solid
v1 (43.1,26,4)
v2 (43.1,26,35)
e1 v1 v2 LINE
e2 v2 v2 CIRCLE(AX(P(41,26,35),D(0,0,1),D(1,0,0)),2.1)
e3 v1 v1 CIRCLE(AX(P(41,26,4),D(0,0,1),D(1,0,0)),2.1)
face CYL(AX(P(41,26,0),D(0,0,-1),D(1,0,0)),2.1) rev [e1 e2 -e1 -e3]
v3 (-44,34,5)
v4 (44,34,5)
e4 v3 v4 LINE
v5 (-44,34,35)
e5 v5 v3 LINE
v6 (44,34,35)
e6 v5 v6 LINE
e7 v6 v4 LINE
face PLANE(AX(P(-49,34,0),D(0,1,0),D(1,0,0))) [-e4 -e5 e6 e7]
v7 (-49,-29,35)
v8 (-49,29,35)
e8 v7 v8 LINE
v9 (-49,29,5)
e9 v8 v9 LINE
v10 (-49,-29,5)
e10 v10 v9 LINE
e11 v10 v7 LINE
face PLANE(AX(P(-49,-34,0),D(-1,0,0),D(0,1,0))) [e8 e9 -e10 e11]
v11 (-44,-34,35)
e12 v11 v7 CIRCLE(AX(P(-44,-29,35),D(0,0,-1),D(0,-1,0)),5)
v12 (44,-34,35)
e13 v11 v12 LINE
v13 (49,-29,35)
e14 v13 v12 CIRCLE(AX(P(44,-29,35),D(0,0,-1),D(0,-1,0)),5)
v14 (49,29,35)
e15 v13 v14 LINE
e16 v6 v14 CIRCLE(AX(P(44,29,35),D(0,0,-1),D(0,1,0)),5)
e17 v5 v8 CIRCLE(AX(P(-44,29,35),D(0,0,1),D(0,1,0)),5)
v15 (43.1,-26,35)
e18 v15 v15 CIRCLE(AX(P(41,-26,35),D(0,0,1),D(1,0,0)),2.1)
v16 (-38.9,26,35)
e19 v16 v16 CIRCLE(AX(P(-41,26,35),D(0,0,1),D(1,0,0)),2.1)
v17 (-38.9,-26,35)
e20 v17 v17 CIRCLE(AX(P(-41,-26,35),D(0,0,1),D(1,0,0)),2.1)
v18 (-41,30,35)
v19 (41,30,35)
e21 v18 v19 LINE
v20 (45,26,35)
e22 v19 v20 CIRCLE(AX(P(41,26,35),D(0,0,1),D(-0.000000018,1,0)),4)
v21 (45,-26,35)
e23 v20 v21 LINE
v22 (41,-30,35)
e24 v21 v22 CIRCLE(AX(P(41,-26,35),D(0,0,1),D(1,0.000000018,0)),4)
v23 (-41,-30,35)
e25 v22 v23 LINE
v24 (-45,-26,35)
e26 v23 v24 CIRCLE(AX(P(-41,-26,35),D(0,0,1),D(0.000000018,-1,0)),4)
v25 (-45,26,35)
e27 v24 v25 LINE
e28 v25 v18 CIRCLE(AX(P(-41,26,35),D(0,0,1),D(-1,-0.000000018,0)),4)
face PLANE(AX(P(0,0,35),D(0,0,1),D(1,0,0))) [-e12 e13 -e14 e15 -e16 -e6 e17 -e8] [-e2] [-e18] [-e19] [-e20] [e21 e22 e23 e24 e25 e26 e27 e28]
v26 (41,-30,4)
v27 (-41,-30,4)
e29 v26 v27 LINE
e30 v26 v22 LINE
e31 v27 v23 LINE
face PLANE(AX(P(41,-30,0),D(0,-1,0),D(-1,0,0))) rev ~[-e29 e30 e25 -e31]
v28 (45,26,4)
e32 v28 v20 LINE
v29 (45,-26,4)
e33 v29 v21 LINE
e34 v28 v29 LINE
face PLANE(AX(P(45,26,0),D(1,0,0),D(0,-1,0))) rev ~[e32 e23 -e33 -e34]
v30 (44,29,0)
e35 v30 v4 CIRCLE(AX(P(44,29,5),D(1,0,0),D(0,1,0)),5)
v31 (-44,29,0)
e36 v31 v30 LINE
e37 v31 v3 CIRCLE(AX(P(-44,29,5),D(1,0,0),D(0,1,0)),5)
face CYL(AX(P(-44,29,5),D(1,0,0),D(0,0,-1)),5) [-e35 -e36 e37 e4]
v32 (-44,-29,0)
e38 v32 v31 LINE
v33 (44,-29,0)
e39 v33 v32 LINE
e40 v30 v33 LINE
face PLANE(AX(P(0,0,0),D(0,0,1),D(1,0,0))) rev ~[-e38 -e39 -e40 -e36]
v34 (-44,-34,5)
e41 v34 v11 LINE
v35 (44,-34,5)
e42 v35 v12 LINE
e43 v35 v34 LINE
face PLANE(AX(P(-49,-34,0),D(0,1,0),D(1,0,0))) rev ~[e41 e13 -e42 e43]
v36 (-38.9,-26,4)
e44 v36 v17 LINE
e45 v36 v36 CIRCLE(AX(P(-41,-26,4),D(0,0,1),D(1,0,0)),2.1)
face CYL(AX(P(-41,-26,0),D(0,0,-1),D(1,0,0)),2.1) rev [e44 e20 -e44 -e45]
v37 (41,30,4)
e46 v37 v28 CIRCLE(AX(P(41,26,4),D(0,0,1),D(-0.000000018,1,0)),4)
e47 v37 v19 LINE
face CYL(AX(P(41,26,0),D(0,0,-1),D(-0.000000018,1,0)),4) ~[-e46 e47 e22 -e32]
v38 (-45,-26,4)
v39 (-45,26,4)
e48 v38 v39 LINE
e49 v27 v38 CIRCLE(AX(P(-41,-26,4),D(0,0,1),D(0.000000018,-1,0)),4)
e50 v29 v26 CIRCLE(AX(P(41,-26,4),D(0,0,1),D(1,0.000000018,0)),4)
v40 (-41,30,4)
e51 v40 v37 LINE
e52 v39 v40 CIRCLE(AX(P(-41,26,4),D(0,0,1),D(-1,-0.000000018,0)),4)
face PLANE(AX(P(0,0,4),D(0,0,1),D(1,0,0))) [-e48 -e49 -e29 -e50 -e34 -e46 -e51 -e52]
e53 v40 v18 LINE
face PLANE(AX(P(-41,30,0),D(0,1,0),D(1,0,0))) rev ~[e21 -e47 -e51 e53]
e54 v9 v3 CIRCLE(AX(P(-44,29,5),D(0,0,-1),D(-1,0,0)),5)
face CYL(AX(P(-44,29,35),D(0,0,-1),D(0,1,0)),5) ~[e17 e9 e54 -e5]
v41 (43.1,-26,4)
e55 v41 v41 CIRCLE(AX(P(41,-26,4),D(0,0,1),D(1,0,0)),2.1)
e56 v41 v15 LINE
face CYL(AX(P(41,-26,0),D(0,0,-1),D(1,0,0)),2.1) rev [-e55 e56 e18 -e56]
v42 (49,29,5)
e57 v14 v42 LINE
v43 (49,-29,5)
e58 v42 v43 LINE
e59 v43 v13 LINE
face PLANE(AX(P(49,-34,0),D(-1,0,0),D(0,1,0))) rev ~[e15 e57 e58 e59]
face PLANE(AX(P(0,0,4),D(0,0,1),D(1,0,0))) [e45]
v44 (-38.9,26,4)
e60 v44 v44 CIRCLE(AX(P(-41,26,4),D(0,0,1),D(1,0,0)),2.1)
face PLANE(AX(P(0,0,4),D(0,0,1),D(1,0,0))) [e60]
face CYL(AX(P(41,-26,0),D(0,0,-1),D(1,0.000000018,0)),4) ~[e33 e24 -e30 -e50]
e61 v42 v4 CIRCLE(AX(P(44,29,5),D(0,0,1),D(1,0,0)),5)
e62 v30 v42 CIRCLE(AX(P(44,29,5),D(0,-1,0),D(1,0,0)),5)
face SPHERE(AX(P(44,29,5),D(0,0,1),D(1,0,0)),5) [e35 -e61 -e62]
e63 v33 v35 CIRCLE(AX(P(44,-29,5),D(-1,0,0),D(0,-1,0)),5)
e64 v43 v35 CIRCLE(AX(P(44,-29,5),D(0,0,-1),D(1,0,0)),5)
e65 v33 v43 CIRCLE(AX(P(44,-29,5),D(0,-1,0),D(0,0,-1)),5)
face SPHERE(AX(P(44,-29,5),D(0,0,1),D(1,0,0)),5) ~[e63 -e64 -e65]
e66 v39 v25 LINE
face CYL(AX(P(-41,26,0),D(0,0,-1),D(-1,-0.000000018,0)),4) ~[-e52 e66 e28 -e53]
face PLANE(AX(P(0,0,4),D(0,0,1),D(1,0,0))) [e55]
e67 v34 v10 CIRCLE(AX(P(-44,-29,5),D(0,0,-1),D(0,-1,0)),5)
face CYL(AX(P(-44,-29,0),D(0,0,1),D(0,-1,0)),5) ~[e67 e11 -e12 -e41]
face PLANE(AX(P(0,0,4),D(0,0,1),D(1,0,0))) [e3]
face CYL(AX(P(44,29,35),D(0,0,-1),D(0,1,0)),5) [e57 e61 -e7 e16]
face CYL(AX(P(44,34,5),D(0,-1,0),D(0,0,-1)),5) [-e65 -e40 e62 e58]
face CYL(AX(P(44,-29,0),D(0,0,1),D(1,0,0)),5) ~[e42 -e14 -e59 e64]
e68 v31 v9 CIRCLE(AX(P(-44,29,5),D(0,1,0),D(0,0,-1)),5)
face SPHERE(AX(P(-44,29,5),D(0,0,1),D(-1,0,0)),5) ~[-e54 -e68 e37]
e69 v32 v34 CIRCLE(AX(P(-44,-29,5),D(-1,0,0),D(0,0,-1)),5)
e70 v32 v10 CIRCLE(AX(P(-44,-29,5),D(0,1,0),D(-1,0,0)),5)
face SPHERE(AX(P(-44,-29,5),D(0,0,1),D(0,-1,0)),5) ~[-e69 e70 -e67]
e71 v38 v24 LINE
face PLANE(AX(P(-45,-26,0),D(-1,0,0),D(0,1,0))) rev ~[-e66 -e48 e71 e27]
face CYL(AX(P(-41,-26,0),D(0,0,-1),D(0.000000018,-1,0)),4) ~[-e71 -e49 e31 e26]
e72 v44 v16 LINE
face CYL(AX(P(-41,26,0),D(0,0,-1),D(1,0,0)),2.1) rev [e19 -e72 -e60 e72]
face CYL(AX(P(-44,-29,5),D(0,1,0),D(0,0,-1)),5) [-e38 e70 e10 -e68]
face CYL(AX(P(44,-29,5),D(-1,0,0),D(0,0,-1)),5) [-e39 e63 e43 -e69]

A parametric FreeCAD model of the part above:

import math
import FreeCAD as App
import Part
import Sketcher

V = App.Vector


def edges_at(feature, points):
    """Names of the edges that pass closest to the given points."""
    edges = feature.Shape.Edges
    near = lambda p: min(range(len(edges)), key=lambda i: edges[i].distToShape(Part.Vertex(*p))[0])
    return sorted({f"Edge{near(p) + 1}" for p in points})

doc = App.newDocument("Part")
body = doc.addObject("PartDesign::Body", "Body")

# Sketch on XY plane
sketch1 = body.newObject("Sketcher::SketchObject", "Sketch")
sketch1.AttachmentSupport = (doc.getObject("XY_Plane"), [""])
sketch1.MapMode = "FlatFace"
sketch1.addGeometry([
    Part.LineSegment(V(-49, 34, 0), V(-49, -34, 0)),  # 0
    Part.LineSegment(V(-49, -34, 0), V(49, -34, 0)),  # 1
    Part.LineSegment(V(49, -34, 0), V(49, 34, 0)),  # 2
    Part.LineSegment(V(49, 34, 0), V(-49, 34, 0)),  # 3
    Part.Circle(V(-41, -26, 0), V(0, 0, 1), 2.1),  # 4
    Part.Circle(V(41, -26, 0), V(0, 0, 1), 2.1),  # 5
    Part.Circle(V(-41, 26, 0), V(0, 0, 1), 2.1),  # 6
    Part.LineSegment(V(45, 26, 0), V(45, -26, 0)),  # 7
    Part.ArcOfCircle(Part.Circle(V(41, -26, 0), V(0, 0, 1), 4), math.radians(0), math.radians(270)),  # 8
    Part.LineSegment(V(41, -30, 0), V(-41, -30, 0)),  # 9
    Part.ArcOfCircle(Part.Circle(V(-41, -26, 0), V(0, 0, 1), 4), math.radians(-90), math.radians(180)),  # 10
    Part.LineSegment(V(-45, -26, 0), V(-45, 26, 0)),  # 11
    Part.ArcOfCircle(Part.Circle(V(-41, 26, 0), V(0, 0, 1), 4), math.radians(-180), math.radians(90)),  # 12
    Part.LineSegment(V(-41, 30, 0), V(41, 30, 0)),  # 13
    Part.ArcOfCircle(Part.Circle(V(41, 26, 0), V(0, 0, 1), 4), math.radians(90), math.radians(360)),  # 14
    Part.Circle(V(41, 26, 0), V(0, 0, 1), 2.1),  # 15
], False)
sketch1.addConstraint([
    Sketcher.Constraint("Coincident", 0, 2, 1, 1),
    Sketcher.Constraint("Coincident", 1, 2, 2, 1),
    Sketcher.Constraint("Coincident", 2, 2, 3, 1),
    Sketcher.Constraint("Coincident", 3, 2, 0, 1),
    Sketcher.Constraint("Tangent", 7, 2, 8, 1),
    Sketcher.Constraint("Tangent", 8, 2, 9, 1),
    Sketcher.Constraint("Tangent", 9, 2, 10, 1),
    Sketcher.Constraint("Tangent", 10, 2, 11, 1),
    Sketcher.Constraint("Tangent", 11, 2, 12, 1),
    Sketcher.Constraint("Tangent", 12, 2, 13, 1),
    Sketcher.Constraint("Tangent", 13, 2, 14, 1),
    Sketcher.Constraint("Tangent", 14, 2, 7, 1),
    Sketcher.Constraint("Vertical", 0),
    Sketcher.Constraint("Horizontal", 1),
    Sketcher.Constraint("Vertical", 2),
    Sketcher.Constraint("Horizontal", 3),
    Sketcher.Constraint("Vertical", 7),
    Sketcher.Constraint("Horizontal", 9),
    Sketcher.Constraint("Vertical", 11),
    Sketcher.Constraint("Horizontal", 13),
    Sketcher.Constraint("Coincident", 8, 3, 5, 3),
    Sketcher.Constraint("Coincident", 10, 3, 4, 3),
    Sketcher.Constraint("Coincident", 12, 3, 6, 3),
    Sketcher.Constraint("Coincident", 15, 3, 14, 3),
    Sketcher.Constraint("Equal", 4, 5),
    Sketcher.Constraint("Equal", 5, 6),
    Sketcher.Constraint("Equal", 8, 10),
    Sketcher.Constraint("Equal", 10, 12),
    Sketcher.Constraint("Equal", 12, 14),
    Sketcher.Constraint("Equal", 6, 15),
    Sketcher.Constraint("Symmetric", 5, 3, 6, 3, -1, 1),
    Sketcher.Constraint("Symmetric", 0, 2, 2, 2, -1, 1),
    Sketcher.Constraint("Radius", 8, 4.0),
    Sketcher.Constraint("Diameter", 4, 4.2),
    Sketcher.Constraint("DistanceX", 1, 1, 1, 2, 98.0),
    Sketcher.Constraint("DistanceX", 9, 2, 9, 1, 82.0),
    Sketcher.Constraint("DistanceY", 0, 2, 0, 1, 68.0),
    Sketcher.Constraint("DistanceY", 7, 2, 7, 1, 52.0),
])
pad1 = body.newObject("PartDesign::Pad", "Pad")
pad1.Profile = sketch1
pad1.Length = 35

# Sketch on XY plane
sketch2 = body.newObject("Sketcher::SketchObject", "Sketch001")
sketch2.AttachmentSupport = (doc.getObject("XY_Plane"), [""])
sketch2.MapMode = "FlatFace"
sketch2.addGeometry([
    Part.LineSegment(V(-49, 34, 0), V(-49, -34, 0)),
    Part.LineSegment(V(-49, -34, 0), V(49, -34, 0)),
    Part.LineSegment(V(49, -34, 0), V(49, 34, 0)),
    Part.LineSegment(V(49, 34, 0), V(-49, 34, 0)),
], False)
sketch2.addConstraint([
    Sketcher.Constraint("Coincident", 0, 2, 1, 1),
    Sketcher.Constraint("Coincident", 1, 2, 2, 1),
    Sketcher.Constraint("Coincident", 2, 2, 3, 1),
    Sketcher.Constraint("Coincident", 3, 2, 0, 1),
    Sketcher.Constraint("Vertical", 0),
    Sketcher.Constraint("Horizontal", 1),
    Sketcher.Constraint("Vertical", 2),
    Sketcher.Constraint("Horizontal", 3),
    Sketcher.Constraint("Symmetric", 0, 2, 2, 2, -1, 1),
    Sketcher.Constraint("DistanceX", 1, 1, 1, 2, 98.0),
    Sketcher.Constraint("DistanceY", 0, 2, 0, 1, 68.0),
])
pad2 = body.newObject("PartDesign::Pad", "Pad001")
pad2.Profile = sketch2
pad2.Length = 4
doc.recompute()

fillet = body.newObject("PartDesign::Fillet", "Fillet")
fillet.Base = (pad2, edges_at(pad2, [(49, -34, 17.5), (-49, -34, 17.5), (-49, 34, 17.5)]))
fillet.Radius = 5
doc.recompute()

fillet2 = body.newObject("PartDesign::Fillet", "Fillet001")
fillet2.Base = (fillet, edges_at(fillet, [(49, 34, 17.5), (2.5, 34, 0)]))
fillet2.Radius = 5

doc.recompute()
